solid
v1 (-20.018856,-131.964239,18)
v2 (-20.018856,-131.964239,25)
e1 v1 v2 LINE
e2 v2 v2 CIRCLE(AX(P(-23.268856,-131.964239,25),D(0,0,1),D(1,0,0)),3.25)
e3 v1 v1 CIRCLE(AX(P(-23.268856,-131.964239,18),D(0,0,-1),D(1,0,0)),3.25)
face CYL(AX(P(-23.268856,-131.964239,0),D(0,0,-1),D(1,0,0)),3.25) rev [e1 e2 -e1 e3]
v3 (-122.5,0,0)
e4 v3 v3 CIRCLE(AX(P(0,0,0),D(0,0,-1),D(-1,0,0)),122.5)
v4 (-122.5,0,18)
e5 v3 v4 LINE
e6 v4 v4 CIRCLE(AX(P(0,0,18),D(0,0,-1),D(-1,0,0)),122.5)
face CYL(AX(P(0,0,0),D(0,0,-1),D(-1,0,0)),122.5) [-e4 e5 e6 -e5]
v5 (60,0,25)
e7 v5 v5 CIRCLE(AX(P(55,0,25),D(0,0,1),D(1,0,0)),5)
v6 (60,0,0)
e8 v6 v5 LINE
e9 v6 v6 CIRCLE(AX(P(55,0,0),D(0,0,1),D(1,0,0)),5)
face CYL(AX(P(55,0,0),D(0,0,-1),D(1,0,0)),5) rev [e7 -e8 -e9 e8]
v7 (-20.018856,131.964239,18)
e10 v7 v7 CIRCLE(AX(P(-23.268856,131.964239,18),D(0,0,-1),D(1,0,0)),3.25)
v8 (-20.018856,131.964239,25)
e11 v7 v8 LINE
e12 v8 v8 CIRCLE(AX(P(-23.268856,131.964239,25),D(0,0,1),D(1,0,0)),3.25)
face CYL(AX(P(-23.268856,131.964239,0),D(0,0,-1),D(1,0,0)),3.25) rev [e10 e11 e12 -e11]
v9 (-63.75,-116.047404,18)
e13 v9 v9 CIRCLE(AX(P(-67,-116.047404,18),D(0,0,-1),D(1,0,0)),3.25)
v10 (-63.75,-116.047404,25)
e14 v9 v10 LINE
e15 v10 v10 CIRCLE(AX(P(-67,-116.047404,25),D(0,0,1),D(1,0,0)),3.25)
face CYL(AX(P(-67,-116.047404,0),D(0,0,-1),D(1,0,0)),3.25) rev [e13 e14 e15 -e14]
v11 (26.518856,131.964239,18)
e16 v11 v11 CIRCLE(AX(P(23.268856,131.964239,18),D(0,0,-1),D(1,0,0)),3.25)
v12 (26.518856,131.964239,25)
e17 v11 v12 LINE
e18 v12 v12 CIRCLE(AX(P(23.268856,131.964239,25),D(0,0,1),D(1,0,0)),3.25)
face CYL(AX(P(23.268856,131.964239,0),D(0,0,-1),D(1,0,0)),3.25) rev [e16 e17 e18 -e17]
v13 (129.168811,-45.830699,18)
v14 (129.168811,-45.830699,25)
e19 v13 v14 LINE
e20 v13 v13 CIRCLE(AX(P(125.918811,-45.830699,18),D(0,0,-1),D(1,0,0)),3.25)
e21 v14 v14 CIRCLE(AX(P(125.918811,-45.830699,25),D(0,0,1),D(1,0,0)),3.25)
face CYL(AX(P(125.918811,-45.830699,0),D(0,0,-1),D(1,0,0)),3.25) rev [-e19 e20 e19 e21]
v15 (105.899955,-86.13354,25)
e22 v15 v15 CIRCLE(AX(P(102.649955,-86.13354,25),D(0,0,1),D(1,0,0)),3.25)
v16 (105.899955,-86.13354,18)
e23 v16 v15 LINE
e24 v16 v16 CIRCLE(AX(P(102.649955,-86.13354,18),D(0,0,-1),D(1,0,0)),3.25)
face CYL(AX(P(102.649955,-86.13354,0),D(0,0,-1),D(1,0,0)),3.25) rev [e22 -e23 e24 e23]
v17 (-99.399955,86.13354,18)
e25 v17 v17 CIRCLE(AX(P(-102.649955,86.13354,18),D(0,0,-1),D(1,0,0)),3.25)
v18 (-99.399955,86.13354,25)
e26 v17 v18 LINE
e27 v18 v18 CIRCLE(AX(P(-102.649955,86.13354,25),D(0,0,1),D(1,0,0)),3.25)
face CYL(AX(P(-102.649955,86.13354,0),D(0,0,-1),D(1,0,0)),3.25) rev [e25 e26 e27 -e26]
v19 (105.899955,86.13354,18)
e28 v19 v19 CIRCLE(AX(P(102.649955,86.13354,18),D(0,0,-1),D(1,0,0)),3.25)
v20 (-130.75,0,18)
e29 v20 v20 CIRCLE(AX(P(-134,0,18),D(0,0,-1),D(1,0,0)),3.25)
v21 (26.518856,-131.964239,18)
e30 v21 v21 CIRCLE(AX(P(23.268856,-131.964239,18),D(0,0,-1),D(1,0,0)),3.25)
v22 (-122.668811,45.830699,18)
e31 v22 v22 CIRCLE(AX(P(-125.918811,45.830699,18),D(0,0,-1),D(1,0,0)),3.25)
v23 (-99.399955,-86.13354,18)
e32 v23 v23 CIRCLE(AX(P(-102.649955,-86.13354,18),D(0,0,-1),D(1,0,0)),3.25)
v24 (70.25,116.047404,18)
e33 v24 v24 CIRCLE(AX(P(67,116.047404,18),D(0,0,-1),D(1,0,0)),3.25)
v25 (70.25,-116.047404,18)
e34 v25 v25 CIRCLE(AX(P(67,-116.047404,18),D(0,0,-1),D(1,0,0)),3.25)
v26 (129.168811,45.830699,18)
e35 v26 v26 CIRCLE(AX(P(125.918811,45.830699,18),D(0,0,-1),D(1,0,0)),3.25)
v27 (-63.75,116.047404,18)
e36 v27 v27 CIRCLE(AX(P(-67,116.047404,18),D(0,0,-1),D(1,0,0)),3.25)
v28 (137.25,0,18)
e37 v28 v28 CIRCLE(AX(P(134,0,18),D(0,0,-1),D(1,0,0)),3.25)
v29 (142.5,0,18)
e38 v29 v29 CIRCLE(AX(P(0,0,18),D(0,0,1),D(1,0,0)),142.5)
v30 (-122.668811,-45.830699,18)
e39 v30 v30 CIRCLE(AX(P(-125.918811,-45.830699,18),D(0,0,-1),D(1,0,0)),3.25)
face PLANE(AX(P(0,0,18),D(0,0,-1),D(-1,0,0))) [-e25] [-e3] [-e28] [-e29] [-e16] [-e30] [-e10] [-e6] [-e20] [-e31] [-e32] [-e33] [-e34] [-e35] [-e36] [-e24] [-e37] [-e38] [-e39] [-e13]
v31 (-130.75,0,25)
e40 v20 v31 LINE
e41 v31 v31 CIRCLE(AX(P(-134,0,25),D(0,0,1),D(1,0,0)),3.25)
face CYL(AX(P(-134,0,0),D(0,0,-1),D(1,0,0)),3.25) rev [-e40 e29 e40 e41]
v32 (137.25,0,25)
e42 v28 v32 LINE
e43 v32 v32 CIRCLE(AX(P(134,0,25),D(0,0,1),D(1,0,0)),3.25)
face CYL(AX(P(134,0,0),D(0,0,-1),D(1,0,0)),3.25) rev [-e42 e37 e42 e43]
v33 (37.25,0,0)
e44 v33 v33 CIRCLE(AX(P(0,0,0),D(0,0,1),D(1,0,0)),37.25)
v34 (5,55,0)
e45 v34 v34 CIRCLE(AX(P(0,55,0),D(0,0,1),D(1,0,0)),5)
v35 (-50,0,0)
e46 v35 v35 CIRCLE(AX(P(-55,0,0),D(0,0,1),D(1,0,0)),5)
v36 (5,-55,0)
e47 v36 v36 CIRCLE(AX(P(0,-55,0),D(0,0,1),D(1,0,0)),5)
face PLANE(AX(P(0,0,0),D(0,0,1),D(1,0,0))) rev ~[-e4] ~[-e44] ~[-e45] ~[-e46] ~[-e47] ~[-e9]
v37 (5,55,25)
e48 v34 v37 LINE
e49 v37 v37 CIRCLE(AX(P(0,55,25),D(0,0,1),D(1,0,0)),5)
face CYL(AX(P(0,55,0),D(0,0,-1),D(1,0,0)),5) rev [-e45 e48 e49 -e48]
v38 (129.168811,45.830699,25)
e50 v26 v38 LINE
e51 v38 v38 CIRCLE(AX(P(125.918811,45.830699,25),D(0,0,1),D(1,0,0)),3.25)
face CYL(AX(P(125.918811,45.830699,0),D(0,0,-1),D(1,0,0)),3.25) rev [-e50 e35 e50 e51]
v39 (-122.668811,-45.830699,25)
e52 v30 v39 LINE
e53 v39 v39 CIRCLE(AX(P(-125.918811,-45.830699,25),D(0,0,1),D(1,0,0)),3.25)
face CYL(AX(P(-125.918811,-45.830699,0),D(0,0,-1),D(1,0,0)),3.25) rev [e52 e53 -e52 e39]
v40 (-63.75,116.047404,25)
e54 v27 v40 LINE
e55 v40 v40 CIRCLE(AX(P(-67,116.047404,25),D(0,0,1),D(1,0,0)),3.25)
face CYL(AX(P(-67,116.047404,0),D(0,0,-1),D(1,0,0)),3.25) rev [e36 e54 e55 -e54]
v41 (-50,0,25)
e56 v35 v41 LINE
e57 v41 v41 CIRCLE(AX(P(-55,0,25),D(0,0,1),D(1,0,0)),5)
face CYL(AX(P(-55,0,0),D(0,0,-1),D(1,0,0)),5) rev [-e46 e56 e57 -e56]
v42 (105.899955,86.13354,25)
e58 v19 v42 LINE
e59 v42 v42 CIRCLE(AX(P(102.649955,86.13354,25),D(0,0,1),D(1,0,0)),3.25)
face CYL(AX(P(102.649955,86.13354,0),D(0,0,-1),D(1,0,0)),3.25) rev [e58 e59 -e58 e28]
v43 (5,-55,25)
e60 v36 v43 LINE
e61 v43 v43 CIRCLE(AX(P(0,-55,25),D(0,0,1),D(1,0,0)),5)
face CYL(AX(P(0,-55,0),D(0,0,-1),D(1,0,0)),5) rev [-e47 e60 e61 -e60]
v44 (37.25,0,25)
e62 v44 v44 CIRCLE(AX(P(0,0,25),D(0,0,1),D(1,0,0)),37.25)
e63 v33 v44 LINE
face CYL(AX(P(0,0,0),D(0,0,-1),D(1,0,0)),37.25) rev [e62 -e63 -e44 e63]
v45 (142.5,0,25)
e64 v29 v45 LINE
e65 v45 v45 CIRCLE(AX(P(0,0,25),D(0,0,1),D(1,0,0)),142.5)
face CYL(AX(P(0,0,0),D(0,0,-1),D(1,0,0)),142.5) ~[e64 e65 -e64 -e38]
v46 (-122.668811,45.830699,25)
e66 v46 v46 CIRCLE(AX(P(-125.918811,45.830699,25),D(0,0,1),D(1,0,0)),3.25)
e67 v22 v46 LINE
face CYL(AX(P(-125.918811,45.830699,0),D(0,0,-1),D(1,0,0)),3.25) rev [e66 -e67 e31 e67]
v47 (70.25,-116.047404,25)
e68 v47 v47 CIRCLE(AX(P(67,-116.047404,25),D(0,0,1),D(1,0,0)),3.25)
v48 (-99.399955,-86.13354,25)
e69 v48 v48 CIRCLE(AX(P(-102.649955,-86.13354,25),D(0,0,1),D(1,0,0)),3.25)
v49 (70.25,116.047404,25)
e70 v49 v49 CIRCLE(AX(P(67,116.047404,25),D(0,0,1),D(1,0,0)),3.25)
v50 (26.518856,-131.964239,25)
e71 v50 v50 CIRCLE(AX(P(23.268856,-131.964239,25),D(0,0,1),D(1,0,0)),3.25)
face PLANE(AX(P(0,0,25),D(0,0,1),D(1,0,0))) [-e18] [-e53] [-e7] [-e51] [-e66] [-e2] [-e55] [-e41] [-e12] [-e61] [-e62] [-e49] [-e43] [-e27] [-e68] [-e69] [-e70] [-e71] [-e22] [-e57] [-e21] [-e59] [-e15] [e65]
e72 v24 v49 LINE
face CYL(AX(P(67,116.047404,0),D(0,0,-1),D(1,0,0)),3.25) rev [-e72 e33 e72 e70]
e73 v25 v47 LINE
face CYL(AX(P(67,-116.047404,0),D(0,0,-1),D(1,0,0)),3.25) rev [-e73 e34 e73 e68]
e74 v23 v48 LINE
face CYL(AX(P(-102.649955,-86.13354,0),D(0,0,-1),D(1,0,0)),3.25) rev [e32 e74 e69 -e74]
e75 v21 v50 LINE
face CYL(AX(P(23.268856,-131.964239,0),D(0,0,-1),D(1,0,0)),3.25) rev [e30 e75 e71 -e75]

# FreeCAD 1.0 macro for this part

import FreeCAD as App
import Part
import Sketcher
Q = App.Units.Quantity

doc = App.newDocument("Part")
body = doc.addObject("PartDesign::Body", "Body")

sketch1 = body.newObject("Sketcher::SketchObject", "Sketch")
sketch1.AttachmentSupport = (doc.getObject("XY_Plane"), [""])
sketch1.MapMode = "FlatFace"
sketch1.addGeometry([
    Part.Circle(App.Vector(0, 0, 0), App.Vector(0, 0, 1), 142.5),
    Part.Circle(App.Vector(-102.6, -86.1, 0), App.Vector(0, 0, 1), 3.2),
    Part.Circle(App.Vector(-67, -116, 0), App.Vector(0, 0, 1), 3.2),
    Part.Circle(App.Vector(-23.3, -132, 0), App.Vector(0, 0, 1), 3.2),
    Part.Circle(App.Vector(-125.9, -45.8, 0), App.Vector(0, 0, 1), 3.2),
    Part.Circle(App.Vector(23.3, -132, 0), App.Vector(0, 0, 1), 3.2),
    Part.Circle(App.Vector(67, -116, 0), App.Vector(0, 0, 1), 3.2),
    Part.Circle(App.Vector(102.6, -86.1, 0), App.Vector(0, 0, 1), 3.2),
    Part.Circle(App.Vector(0, -55, 0), App.Vector(0, 0, 1), 5),
    Part.Circle(App.Vector(125.9, -45.8, 0), App.Vector(0, 0, 1), 3.2),
    Part.Circle(App.Vector(-134, 0, 0), App.Vector(0, 0, 1), 3.2),
    Part.Circle(App.Vector(-125.9, 45.8, 0), App.Vector(0, 0, 1), 3.2),
    Part.Circle(App.Vector(-55, 0, 0), App.Vector(0, 0, 1), 5),
    Part.Circle(App.Vector(-102.6, 86.1, 0), App.Vector(0, 0, 1), 3.2),
    Part.Circle(App.Vector(-67, 116, 0), App.Vector(0, 0, 1), 3.2),
    Part.Circle(App.Vector(-23.3, 132, 0), App.Vector(0, 0, 1), 3.2),
    Part.Circle(App.Vector(0, 0, 0), App.Vector(0, 0, 1), 37.2),
    Part.Circle(App.Vector(55, 0, 0), App.Vector(0, 0, 1), 5),
    Part.Circle(App.Vector(0, 55, 0), App.Vector(0, 0, 1), 5),
    Part.Circle(App.Vector(134, 0, 0), App.Vector(0, 0, 1), 3.2),
    Part.Circle(App.Vector(125.9, 45.8, 0), App.Vector(0, 0, 1), 3.2),
    Part.Circle(App.Vector(23.3, 132, 0), App.Vector(0, 0, 1), 3.2),
    Part.Circle(App.Vector(67, 116, 0), App.Vector(0, 0, 1), 3.2),
    Part.Circle(App.Vector(102.6, 86.1, 0), App.Vector(0, 0, 1), 3.2),
], False)
sketch1.addConstraint([
    Sketcher.Constraint("Coincident", 0, 3, -1, 1),
    Sketcher.Constraint("Coincident", 16, 3, -1, 1),
    Sketcher.Constraint("Equal", 1, 2),
    Sketcher.Constraint("Equal", 2, 3),
    Sketcher.Constraint("Equal", 3, 4),
    Sketcher.Constraint("Equal", 4, 5),
    Sketcher.Constraint("Equal", 5, 6),
    Sketcher.Constraint("Equal", 6, 7),
    Sketcher.Constraint("Equal", 7, 9),
    Sketcher.Constraint("Equal", 9, 10),
    Sketcher.Constraint("Equal", 10, 11),
    Sketcher.Constraint("Equal", 8, 12),
    Sketcher.Constraint("Equal", 11, 13),
    Sketcher.Constraint("Equal", 13, 14),
    Sketcher.Constraint("Equal", 14, 15),
    Sketcher.Constraint("Equal", 12, 17),
    Sketcher.Constraint("Equal", 17, 18),
    Sketcher.Constraint("Equal", 15, 19),
    Sketcher.Constraint("Equal", 19, 20),
    Sketcher.Constraint("Equal", 20, 21),
    Sketcher.Constraint("Equal", 21, 22),
    Sketcher.Constraint("Equal", 22, 23),
    Sketcher.Constraint("Symmetric", 9, 3, 11, 3, -1, 1),
    Sketcher.Constraint("Symmetric", 7, 3, 13, 3, -1, 1),
    Sketcher.Constraint("Symmetric", 6, 3, 14, 3, -1, 1),
    Sketcher.Constraint("Symmetric", 5, 3, 15, 3, -1, 1),
    Sketcher.Constraint("Symmetric", 12, 3, 17, 3, -1, 1),
    Sketcher.Constraint("Symmetric", 8, 3, 18, 3, -1, 1),
    Sketcher.Constraint("Symmetric", 10, 3, 19, 3, -1, 1),
    Sketcher.Constraint("Symmetric", 4, 3, 20, 3, -1, 1),
    Sketcher.Constraint("Symmetric", 3, 3, 21, 3, -1, 1),
    Sketcher.Constraint("Symmetric", 2, 3, 22, 3, -1, 1),
    Sketcher.Constraint("Symmetric", 1, 3, 23, 3, -1, 1),
    Sketcher.Constraint("Symmetric", 3, 3, 5, 3, -2),
    Sketcher.Constraint("Symmetric", 2, 3, 6, 3, -2),
    Sketcher.Constraint("Symmetric", 1, 3, 7, 3, -2),
    Sketcher.Constraint("Symmetric", 4, 3, 9, 3, -2),
    Sketcher.Constraint("PointOnObject", 8, 3, -2),
    Sketcher.Constraint("PointOnObject", 10, 3, -1),
    Sketcher.Constraint("PointOnObject", 12, 3, -1),
    Sketcher.Constraint("Diameter", 0, Q("285 mm")),
    Sketcher.Constraint("Diameter", 8, Q("10 mm")),
    Sketcher.Constraint("Diameter", 1, Q("6.5 mm")),
    Sketcher.Constraint("Diameter", 16, Q("74.5 mm")),
    Sketcher.Constraint("DistanceX", 2, 3, -1, 1, Q("67 mm")),
    Sketcher.Constraint("DistanceY", 8, 3, -1, 1, Q("55 mm")),
    Sketcher.Constraint("DistanceX", 10, 3, -1, 1, Q("134 mm")),
    Sketcher.Constraint("DistanceX", 12, 3, -1, 1, Q("55 mm")),
    Sketcher.Constraint("DistanceY", 4, 3, -1, 1, Q("45.830699 mm")),
    Sketcher.Constraint("DistanceX", 1, 3, 3, 3, Q("79.3811 mm")),
    Sketcher.Constraint("DistanceY", 3, 3, 1, 3, Q("45.830699 mm")),
    Sketcher.Constraint("DistanceY", 1, 3, -1, 1, Q("86.13354 mm")),
    Sketcher.Constraint("DistanceX", 4, 3, -1, 1, Q("125.918811 mm")),
    Sketcher.Constraint("DistanceX", 3, 3, 5, 3, Q("46.537712 mm")),
    Sketcher.Constraint("DistanceY", 2, 3, -1, 1, Q("116.047404 mm")),
])
pad1 = body.newObject("PartDesign::Pad", "Pad")
pad1.Profile = sketch1
pad1.Length = 25

sketch2 = body.newObject("Sketcher::SketchObject", "Sketch001")
sketch2.AttachmentSupport = (doc.getObject("XY_Plane"), [""])
sketch2.MapMode = "FlatFace"
sketch2.addGeometry([
    Part.Circle(App.Vector(0, 0, 0), App.Vector(0, 0, 1), 142),
    Part.Circle(App.Vector(0, 0, 0), App.Vector(0, 0, 1), 122),
], False)
sketch2.addConstraint([
    Sketcher.Constraint("Coincident", 0, 3, -1, 1),
    Sketcher.Constraint("Coincident", 1, 3, -1, 1),
    Sketcher.Constraint("Diameter", 0, Q("285 mm")),
    Sketcher.Constraint("Diameter", 1, Q("245 mm")),
])
pocket1 = body.newObject("PartDesign::Pocket", "Pocket")
pocket1.Profile = sketch2
pocket1.Length = 18
pocket1.Reversed = True

doc.recompute()
